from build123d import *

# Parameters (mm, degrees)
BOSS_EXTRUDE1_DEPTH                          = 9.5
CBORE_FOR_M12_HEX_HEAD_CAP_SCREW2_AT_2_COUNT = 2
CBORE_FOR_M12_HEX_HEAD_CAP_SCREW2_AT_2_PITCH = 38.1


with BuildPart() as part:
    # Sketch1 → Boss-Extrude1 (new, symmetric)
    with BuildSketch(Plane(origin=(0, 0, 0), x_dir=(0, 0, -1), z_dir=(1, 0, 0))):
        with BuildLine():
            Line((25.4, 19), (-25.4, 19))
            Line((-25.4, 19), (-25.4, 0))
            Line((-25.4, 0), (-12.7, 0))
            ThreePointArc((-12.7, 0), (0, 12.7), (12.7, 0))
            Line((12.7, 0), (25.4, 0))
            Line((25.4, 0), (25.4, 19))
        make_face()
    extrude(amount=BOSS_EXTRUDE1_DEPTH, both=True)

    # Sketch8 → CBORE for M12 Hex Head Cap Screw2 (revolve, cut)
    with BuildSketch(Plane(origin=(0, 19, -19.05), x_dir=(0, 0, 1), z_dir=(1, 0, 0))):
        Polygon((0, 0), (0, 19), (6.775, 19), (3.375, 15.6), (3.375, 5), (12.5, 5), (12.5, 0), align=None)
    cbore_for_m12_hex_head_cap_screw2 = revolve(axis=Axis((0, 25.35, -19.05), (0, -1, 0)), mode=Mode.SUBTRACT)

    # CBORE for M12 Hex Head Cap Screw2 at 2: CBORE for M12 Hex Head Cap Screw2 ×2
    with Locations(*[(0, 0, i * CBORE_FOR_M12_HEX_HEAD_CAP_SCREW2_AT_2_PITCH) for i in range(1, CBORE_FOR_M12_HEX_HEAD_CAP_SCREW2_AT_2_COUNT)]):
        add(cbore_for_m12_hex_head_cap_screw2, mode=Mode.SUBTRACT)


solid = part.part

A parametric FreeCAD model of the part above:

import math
import FreeCAD as App
import Part
import Sketcher
from FreeCAD import Vector
Q = App.Units.Quantity

doc = App.newDocument("Part")
body = doc.addObject("PartDesign::Body", "Body")

# Sketch on YZ plane
sketch1 = body.newObject("Sketcher::SketchObject", "Sketch")
sketch1.AttachmentSupport = (doc.getObject("YZ_Plane"), [""])
sketch1.MapMode = "FlatFace"
sketch1.addGeometry(Part.LineSegment(Vector(19, -25.4, 0), Vector(19, 25.4, 0)), False)
sketch1.addGeometry(Part.LineSegment(Vector(19, 25.4, 0), Vector(0, 25.4, 0)), False)
sketch1.addGeometry(Part.LineSegment(Vector(0, 25.4, 0), Vector(0, 12.7, 0)), False)
sketch1.addGeometry(Part.ArcOfCircle(Part.Circle(Vector(0, 0, 0), Vector(0, 0, 1), 12.7), math.radians(-90), math.radians(90)), False)
sketch1.addGeometry(Part.LineSegment(Vector(0, -12.7, 0), Vector(0, -25.4, 0)), False)
sketch1.addGeometry(Part.LineSegment(Vector(0, -25.4, 0), Vector(19, -25.4, 0)), False)
sketch1.addConstraint(Sketcher.Constraint("Coincident", 0, 2, 1, 1))
sketch1.addConstraint(Sketcher.Constraint("Coincident", 1, 2, 2, 1))
sketch1.addConstraint(Sketcher.Constraint("Coincident", 2, 2, 3, 2))
sketch1.addConstraint(Sketcher.Constraint("Coincident", 3, 1, 4, 1))
sketch1.addConstraint(Sketcher.Constraint("Coincident", 4, 2, 5, 1))
sketch1.addConstraint(Sketcher.Constraint("Coincident", 5, 2, 0, 1))
sketch1.addConstraint(Sketcher.Constraint("Vertical", 0))
sketch1.addConstraint(Sketcher.Constraint("Horizontal", 1))
sketch1.addConstraint(Sketcher.Constraint("Vertical", 2))
sketch1.addConstraint(Sketcher.Constraint("Vertical", 4))
sketch1.addConstraint(Sketcher.Constraint("Horizontal", 5))
sketch1.addConstraint(Sketcher.Constraint("Coincident", 3, 3, -1, 1))
sketch1.addConstraint(Sketcher.Constraint("Symmetric", 1, 2, 4, 2, -1, 1))
sketch1.addConstraint(Sketcher.Constraint("PointOnObject", 1, 2, -2))
sketch1.addConstraint(Sketcher.Constraint("Radius", 3, 12.7))
sketch1.addConstraint(Sketcher.Constraint("DistanceX", 1, 2, 1, 1, 19.0))
sketch1.addConstraint(Sketcher.Constraint("DistanceY", 0, 1, 0, 2, 50.8))
pad1 = body.newObject("PartDesign::Pad", "Pad")
pad1.Profile = sketch1
pad1.Length = 19
pad1.Midplane = True

# Sketch on YZ plane
sketch2 = body.newObject("Sketcher::SketchObject", "Sketch001")
sketch2.AttachmentSupport = (doc.getObject("YZ_Plane"), [""])
sketch2.MapMode = "FlatFace"
sketch2.addGeometry(Part.LineSegment(Vector(0, -19.05, 0), Vector(19, -19.05, 0)), False)
sketch2.addGeometry(Part.LineSegment(Vector(19, -19.05, 0), Vector(19, -6.55, 0)), False)
sketch2.addGeometry(Part.LineSegment(Vector(19, -6.55, 0), Vector(14, -6.55, 0)), False)
sketch2.addGeometry(Part.LineSegment(Vector(14, -6.55, 0), Vector(14, -15.675, 0)), False)
sketch2.addGeometry(Part.LineSegment(Vector(14, -15.675, 0), Vector(3.4, -15.675, 0)), False)
sketch2.addGeometry(Part.LineSegment(Vector(3.4, -15.675, 0), Vector(0, -12.275, 0)), False)
sketch2.addGeometry(Part.LineSegment(Vector(0, -12.275, 0), Vector(0, -19.05, 0)), False)
sketch2.addGeometry(Part.LineSegment(Vector(19, -19.05, 0), Vector(0, -19.05, 0)), True)  # axis
sketch2.addConstraint(Sketcher.Constraint("Coincident", 0, 2, 1, 1))
sketch2.addConstraint(Sketcher.Constraint("Coincident", 1, 2, 2, 1))
sketch2.addConstraint(Sketcher.Constraint("Coincident", 2, 2, 3, 1))
sketch2.addConstraint(Sketcher.Constraint("Coincident", 3, 2, 4, 1))
sketch2.addConstraint(Sketcher.Constraint("Coincident", 4, 2, 5, 1))
sketch2.addConstraint(Sketcher.Constraint("Coincident", 5, 2, 6, 1))
sketch2.addConstraint(Sketcher.Constraint("Coincident", 6, 2, 0, 1))
sketch2.addConstraint(Sketcher.Constraint("Horizontal", 0))
sketch2.addConstraint(Sketcher.Constraint("Vertical", 1))
sketch2.addConstraint(Sketcher.Constraint("Horizontal", 2))
sketch2.addConstraint(Sketcher.Constraint("Vertical", 3))
sketch2.addConstraint(Sketcher.Constraint("Horizontal", 4))
sketch2.addConstraint(Sketcher.Constraint("Vertical", 6))
sketch2.addConstraint(Sketcher.Constraint("Horizontal", 7))
sketch2.addConstraint(Sketcher.Constraint("Coincident", 7, 1, 0, 2))
sketch2.addConstraint(Sketcher.Constraint("PointOnObject", 5, 2, -2))
sketch2.addConstraint(Sketcher.Constraint("PointOnObject", 7, 2, -2))
sketch2.addConstraint(Sketcher.Constraint("DistanceX", 0, 1, 0, 2, 19.0))
sketch2.addConstraint(Sketcher.Constraint("DistanceX", 2, 2, 2, 1, 5.0))
sketch2.addConstraint(Sketcher.Constraint("Angle", 5, Q("135 deg")))
sketch2.addConstraint(Sketcher.Constraint("DistanceX", 4, 2, 4, 1, 10.6))
sketch2.addConstraint(Sketcher.Constraint("DistanceY", 1, 1, 1, 2, 12.5))
sketch2.addConstraint(Sketcher.Constraint("DistanceY", 3, 2, 3, 1, 9.125))
sketch2.addConstraint(Sketcher.Constraint("DistanceY", 0, 2, -1, 1, 19.05))
groove = body.newObject("PartDesign::Groove", "Groove")
groove.Profile = sketch2
groove.ReferenceAxis = (sketch2, ["Axis0"])
groove.Angle = 360
doc.recompute()

linearpattern = body.newObject("PartDesign::LinearPattern", "LinearPattern")
linearpattern.Originals = [groove]
linearpattern.Direction = (doc.getObject("Z_Axis"), [""])
linearpattern.Mode = "offset"
linearpattern.Offset = 38.1
linearpattern.Occurrences = 2
body.Tip = linearpattern

doc.recompute()
